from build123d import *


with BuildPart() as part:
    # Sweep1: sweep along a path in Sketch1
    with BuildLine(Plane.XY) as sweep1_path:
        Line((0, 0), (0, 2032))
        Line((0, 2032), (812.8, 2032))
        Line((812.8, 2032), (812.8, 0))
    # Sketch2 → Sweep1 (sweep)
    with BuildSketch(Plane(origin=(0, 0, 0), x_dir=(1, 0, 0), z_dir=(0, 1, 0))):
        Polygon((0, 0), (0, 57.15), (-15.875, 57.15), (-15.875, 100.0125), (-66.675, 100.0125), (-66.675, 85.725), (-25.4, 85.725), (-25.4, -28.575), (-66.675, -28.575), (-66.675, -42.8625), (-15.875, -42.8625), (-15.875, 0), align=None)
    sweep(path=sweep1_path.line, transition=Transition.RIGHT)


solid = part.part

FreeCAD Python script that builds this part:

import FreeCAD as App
import Part
import Sketcher
from FreeCAD import Vector
Q = App.Units.Quantity

doc = App.newDocument("Part")
body = doc.addObject("PartDesign::Body", "Body")

# Sketch on XZ plane
sketch1 = body.newObject("Sketcher::SketchObject", "Sketch")
sketch1.AttachmentSupport = (doc.getObject("XZ_Plane"), [""])
sketch1.MapMode = "FlatFace"
sketch1.addGeometry([
    Part.LineSegment(Vector(0, 0, 0), Vector(0, -57, 0)),  # 0
    Part.LineSegment(Vector(0, -57, 0), Vector(-16, -57, 0)),  # 1
    Part.LineSegment(Vector(-16, -57, 0), Vector(-16, -100, 0)),  # 2
    Part.LineSegment(Vector(-16, -100, 0), Vector(-67, -100, 0)),  # 3
    Part.LineSegment(Vector(-67, -100, 0), Vector(-67, -86, 0)),  # 4
    Part.LineSegment(Vector(-67, -86, 0), Vector(-25, -86, 0)),  # 5
    Part.LineSegment(Vector(-25, -86, 0), Vector(-25, 29, 0)),  # 6
    Part.LineSegment(Vector(-25, 29, 0), Vector(-67, 29, 0)),  # 7
    Part.LineSegment(Vector(-67, 29, 0), Vector(-67, 43, 0)),  # 8
    Part.LineSegment(Vector(-67, 43, 0), Vector(-16, 43, 0)),  # 9
    Part.LineSegment(Vector(-16, 43, 0), Vector(-16, 0, 0)),  # 10
    Part.LineSegment(Vector(-16, 0, 0), Vector(0, 0, 0)),  # 11
], False)
sketch1.addConstraint([
    Sketcher.Constraint("Coincident", 0, 2, 1, 1),
    Sketcher.Constraint("Coincident", 1, 2, 2, 1),
    Sketcher.Constraint("Coincident", 2, 2, 3, 1),
    Sketcher.Constraint("Coincident", 3, 2, 4, 1),
    Sketcher.Constraint("Coincident", 4, 2, 5, 1),
    Sketcher.Constraint("Coincident", 5, 2, 6, 1),
    Sketcher.Constraint("Coincident", 6, 2, 7, 1),
    Sketcher.Constraint("Coincident", 7, 2, 8, 1),
    Sketcher.Constraint("Coincident", 8, 2, 9, 1),
    Sketcher.Constraint("Coincident", 9, 2, 10, 1),
    Sketcher.Constraint("Coincident", 10, 2, 11, 1),
    Sketcher.Constraint("Coincident", 11, 2, 0, 1),
    Sketcher.Constraint("Vertical", 0),
    Sketcher.Constraint("Horizontal", 1),
    Sketcher.Constraint("Vertical", 2),
    Sketcher.Constraint("Horizontal", 3),
    Sketcher.Constraint("Vertical", 4),
    Sketcher.Constraint("Horizontal", 5),
    Sketcher.Constraint("Vertical", 6),
    Sketcher.Constraint("Horizontal", 7),
    Sketcher.Constraint("Vertical", 8),
    Sketcher.Constraint("Horizontal", 9),
    Sketcher.Constraint("Vertical", 10),
    Sketcher.Constraint("Horizontal", 11),
    Sketcher.Constraint("Coincident", 11, 2, -1, 1),
    Sketcher.Constraint("Vertical", 4, 2, 7, 2),
    Sketcher.Constraint("Vertical", 2, 2, 9, 2),
    Sketcher.Constraint("Equal", 4, 8),
    Sketcher.Constraint("Equal", 2, 10),
    Sketcher.Constraint("DistanceX", 3, 2, 3, 1, Q("2 in")),
    Sketcher.Constraint("DistanceY", 6, 1, 6, 2, Q("4.5 in")),
    Sketcher.Constraint("DistanceX", 5, 2, -1, 1, Q("1 in")),
    Sketcher.Constraint("DistanceY", 0, 2, 0, 1, Q("2.25 in")),
    Sketcher.Constraint("DistanceX", 1, 2, 1, 1, Q("0.625 in")),
    Sketcher.Constraint("DistanceY", 2, 2, 2, 1, Q("1.6875 in")),
])

# Sketch on XY plane
sketch2 = body.newObject("Sketcher::SketchObject", "Sketch001")
sketch2.AttachmentSupport = (doc.getObject("XY_Plane"), [""])
sketch2.MapMode = "FlatFace"
sketch2.addGeometry([
    Part.LineSegment(Vector(0, 0, 0), Vector(0, 2032, 0)),
    Part.LineSegment(Vector(0, 2032, 0), Vector(813, 2032, 0)),
    Part.LineSegment(Vector(813, 2032, 0), Vector(813, 0, 0)),
], False)
sketch2.addConstraint([
    Sketcher.Constraint("Coincident", 0, 2, 1, 1),
    Sketcher.Constraint("Coincident", 1, 2, 2, 1),
    Sketcher.Constraint("Vertical", 0),
    Sketcher.Constraint("Horizontal", 1),
    Sketcher.Constraint("Vertical", 2),
    Sketcher.Constraint("Coincident", 0, 1, -1, 1),
    Sketcher.Constraint("PointOnObject", 2, 2, -1),
    Sketcher.Constraint("DistanceX", 1, 1, 1, 2, Q("32 in")),
    Sketcher.Constraint("DistanceY", 0, 1, 0, 2, Q("80 in")),
])
doc.recompute()

additivepipe = body.newObject("PartDesign::AdditivePipe", "AdditivePipe")
additivepipe.Profile = sketch1
additivepipe.Spine = (sketch2, ["Edge1", "Edge2", "Edge3"])
additivepipe.Transition = "Right corner"

doc.recompute()
